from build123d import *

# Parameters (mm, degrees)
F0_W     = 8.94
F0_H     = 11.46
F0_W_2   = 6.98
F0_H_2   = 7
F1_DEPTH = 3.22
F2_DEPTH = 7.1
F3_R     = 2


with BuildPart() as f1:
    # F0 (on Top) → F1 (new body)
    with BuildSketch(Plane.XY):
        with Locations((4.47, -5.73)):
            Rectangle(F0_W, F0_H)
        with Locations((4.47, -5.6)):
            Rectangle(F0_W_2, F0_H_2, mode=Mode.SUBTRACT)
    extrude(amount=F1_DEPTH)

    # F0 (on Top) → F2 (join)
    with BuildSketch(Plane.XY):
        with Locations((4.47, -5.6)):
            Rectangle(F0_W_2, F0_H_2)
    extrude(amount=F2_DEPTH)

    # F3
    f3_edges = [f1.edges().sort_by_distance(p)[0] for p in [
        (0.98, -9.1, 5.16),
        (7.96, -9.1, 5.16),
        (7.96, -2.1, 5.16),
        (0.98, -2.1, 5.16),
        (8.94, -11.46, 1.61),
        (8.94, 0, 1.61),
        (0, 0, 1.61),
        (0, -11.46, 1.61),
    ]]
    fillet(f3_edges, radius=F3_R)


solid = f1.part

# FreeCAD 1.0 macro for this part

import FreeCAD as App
import Part
import Sketcher


def edges_at(feature, points):
    """Names of the edges that pass closest to the given points."""
    edges = feature.Shape.Edges
    near = lambda p: min(range(len(edges)), key=lambda i: edges[i].distToShape(Part.Vertex(*p))[0])
    return sorted({f"Edge{near(p) + 1}" for p in points})

doc = App.newDocument("Part")
body = doc.addObject("PartDesign::Body", "Body")

# Sketch on XY plane
sketch1 = body.newObject("Sketcher::SketchObject", "Sketch")
sketch1.AttachmentSupport = (doc.getObject("XY_Plane"), [""])
sketch1.MapMode = "FlatFace"
sketch1.addGeometry([
    Part.LineSegment(App.Vector(0, 0, 0), App.Vector(0, -11.46, 0)),  # 0
    Part.LineSegment(App.Vector(0, -11.46, 0), App.Vector(8.94, -11.46, 0)),  # 1
    Part.LineSegment(App.Vector(8.94, -11.46, 0), App.Vector(8.94, 0, 0)),  # 2
    Part.LineSegment(App.Vector(8.94, 0, 0), App.Vector(0, 0, 0)),  # 3
    Part.LineSegment(App.Vector(7.96, -9.1, 0), App.Vector(0.98, -9.1, 0)),  # 4
    Part.LineSegment(App.Vector(0.98, -9.1, 0), App.Vector(0.98, -2.1, 0)),  # 5
    Part.LineSegment(App.Vector(0.98, -2.1, 0), App.Vector(7.96, -2.1, 0)),  # 6
    Part.LineSegment(App.Vector(7.96, -2.1, 0), App.Vector(7.96, -9.1, 0)),  # 7
], False)
sketch1.addConstraint([
    Sketcher.Constraint("Coincident", 0, 2, 1, 1),
    Sketcher.Constraint("Coincident", 1, 2, 2, 1),
    Sketcher.Constraint("Coincident", 2, 2, 3, 1),
    Sketcher.Constraint("Coincident", 3, 2, 0, 1),
    Sketcher.Constraint("Coincident", 4, 2, 5, 1),
    Sketcher.Constraint("Coincident", 5, 2, 6, 1),
    Sketcher.Constraint("Coincident", 6, 2, 7, 1),
    Sketcher.Constraint("Coincident", 7, 2, 4, 1),
    Sketcher.Constraint("Vertical", 0),
    Sketcher.Constraint("Horizontal", 1),
    Sketcher.Constraint("Vertical", 2),
    Sketcher.Constraint("Horizontal", 3),
    Sketcher.Constraint("Horizontal", 4),
    Sketcher.Constraint("Vertical", 5),
    Sketcher.Constraint("Horizontal", 6),
    Sketcher.Constraint("Vertical", 7),
    Sketcher.Constraint("Coincident", 3, 2, -1, 1),
    Sketcher.Constraint("DistanceY", 5, 1, 5, 2, 7.0),
    Sketcher.Constraint("DistanceX", 1, 1, 1, 2, 8.94),
    Sketcher.Constraint("DistanceX", 4, 2, 4, 1, 6.98),
    Sketcher.Constraint("DistanceY", 0, 2, 0, 1, 11.46),
    Sketcher.Constraint("DistanceY", 4, 2, -1, 1, 9.1),
    Sketcher.Constraint("DistanceX", -1, 1, 4, 2, 0.98),
])
pad1 = body.newObject("PartDesign::Pad", "Pad")
pad1.Profile = sketch1
pad1.Length = 3.22

# Sketch on XY plane
sketch2 = body.newObject("Sketcher::SketchObject", "Sketch001")
sketch2.AttachmentSupport = (doc.getObject("XY_Plane"), [""])
sketch2.MapMode = "FlatFace"
sketch2.addGeometry([
    Part.LineSegment(App.Vector(0.98, -2.1, 0), App.Vector(0.98, -9.1, 0)),
    Part.LineSegment(App.Vector(0.98, -9.1, 0), App.Vector(7.96, -9.1, 0)),
    Part.LineSegment(App.Vector(7.96, -9.1, 0), App.Vector(7.96, -2.1, 0)),
    Part.LineSegment(App.Vector(7.96, -2.1, 0), App.Vector(0.98, -2.1, 0)),
], False)
sketch2.addConstraint([
    Sketcher.Constraint("Coincident", 0, 2, 1, 1),
    Sketcher.Constraint("Coincident", 1, 2, 2, 1),
    Sketcher.Constraint("Coincident", 2, 2, 3, 1),
    Sketcher.Constraint("Coincident", 3, 2, 0, 1),
    Sketcher.Constraint("Vertical", 0),
    Sketcher.Constraint("Horizontal", 1),
    Sketcher.Constraint("Vertical", 2),
    Sketcher.Constraint("Horizontal", 3),
    Sketcher.Constraint("DistanceY", 0, 2, 0, 1, 7.0),
    Sketcher.Constraint("DistanceX", 1, 1, 1, 2, 6.98),
    Sketcher.Constraint("DistanceY", 0, 2, -1, 1, 9.1),
    Sketcher.Constraint("DistanceX", -1, 1, 0, 2, 0.98),
])
pad2 = body.newObject("PartDesign::Pad", "Pad001")
pad2.Profile = sketch2
pad2.Length = 7.1
doc.recompute()

fillet = body.newObject("PartDesign::Fillet", "Fillet")
fillet.Base = (pad2, edges_at(pad2, [
    (0.98, -9.1, 5.16),
    (7.96, -9.1, 5.16),
    (7.96, -2.1, 5.16),
    (0.98, -2.1, 5.16),
    (8.94, -11.46, 1.61),
    (8.94, 0, 1.61),
    (0, 0, 1.61),
    (0, -11.46, 1.61),
]))
fillet.Radius = 2

doc.recompute()
